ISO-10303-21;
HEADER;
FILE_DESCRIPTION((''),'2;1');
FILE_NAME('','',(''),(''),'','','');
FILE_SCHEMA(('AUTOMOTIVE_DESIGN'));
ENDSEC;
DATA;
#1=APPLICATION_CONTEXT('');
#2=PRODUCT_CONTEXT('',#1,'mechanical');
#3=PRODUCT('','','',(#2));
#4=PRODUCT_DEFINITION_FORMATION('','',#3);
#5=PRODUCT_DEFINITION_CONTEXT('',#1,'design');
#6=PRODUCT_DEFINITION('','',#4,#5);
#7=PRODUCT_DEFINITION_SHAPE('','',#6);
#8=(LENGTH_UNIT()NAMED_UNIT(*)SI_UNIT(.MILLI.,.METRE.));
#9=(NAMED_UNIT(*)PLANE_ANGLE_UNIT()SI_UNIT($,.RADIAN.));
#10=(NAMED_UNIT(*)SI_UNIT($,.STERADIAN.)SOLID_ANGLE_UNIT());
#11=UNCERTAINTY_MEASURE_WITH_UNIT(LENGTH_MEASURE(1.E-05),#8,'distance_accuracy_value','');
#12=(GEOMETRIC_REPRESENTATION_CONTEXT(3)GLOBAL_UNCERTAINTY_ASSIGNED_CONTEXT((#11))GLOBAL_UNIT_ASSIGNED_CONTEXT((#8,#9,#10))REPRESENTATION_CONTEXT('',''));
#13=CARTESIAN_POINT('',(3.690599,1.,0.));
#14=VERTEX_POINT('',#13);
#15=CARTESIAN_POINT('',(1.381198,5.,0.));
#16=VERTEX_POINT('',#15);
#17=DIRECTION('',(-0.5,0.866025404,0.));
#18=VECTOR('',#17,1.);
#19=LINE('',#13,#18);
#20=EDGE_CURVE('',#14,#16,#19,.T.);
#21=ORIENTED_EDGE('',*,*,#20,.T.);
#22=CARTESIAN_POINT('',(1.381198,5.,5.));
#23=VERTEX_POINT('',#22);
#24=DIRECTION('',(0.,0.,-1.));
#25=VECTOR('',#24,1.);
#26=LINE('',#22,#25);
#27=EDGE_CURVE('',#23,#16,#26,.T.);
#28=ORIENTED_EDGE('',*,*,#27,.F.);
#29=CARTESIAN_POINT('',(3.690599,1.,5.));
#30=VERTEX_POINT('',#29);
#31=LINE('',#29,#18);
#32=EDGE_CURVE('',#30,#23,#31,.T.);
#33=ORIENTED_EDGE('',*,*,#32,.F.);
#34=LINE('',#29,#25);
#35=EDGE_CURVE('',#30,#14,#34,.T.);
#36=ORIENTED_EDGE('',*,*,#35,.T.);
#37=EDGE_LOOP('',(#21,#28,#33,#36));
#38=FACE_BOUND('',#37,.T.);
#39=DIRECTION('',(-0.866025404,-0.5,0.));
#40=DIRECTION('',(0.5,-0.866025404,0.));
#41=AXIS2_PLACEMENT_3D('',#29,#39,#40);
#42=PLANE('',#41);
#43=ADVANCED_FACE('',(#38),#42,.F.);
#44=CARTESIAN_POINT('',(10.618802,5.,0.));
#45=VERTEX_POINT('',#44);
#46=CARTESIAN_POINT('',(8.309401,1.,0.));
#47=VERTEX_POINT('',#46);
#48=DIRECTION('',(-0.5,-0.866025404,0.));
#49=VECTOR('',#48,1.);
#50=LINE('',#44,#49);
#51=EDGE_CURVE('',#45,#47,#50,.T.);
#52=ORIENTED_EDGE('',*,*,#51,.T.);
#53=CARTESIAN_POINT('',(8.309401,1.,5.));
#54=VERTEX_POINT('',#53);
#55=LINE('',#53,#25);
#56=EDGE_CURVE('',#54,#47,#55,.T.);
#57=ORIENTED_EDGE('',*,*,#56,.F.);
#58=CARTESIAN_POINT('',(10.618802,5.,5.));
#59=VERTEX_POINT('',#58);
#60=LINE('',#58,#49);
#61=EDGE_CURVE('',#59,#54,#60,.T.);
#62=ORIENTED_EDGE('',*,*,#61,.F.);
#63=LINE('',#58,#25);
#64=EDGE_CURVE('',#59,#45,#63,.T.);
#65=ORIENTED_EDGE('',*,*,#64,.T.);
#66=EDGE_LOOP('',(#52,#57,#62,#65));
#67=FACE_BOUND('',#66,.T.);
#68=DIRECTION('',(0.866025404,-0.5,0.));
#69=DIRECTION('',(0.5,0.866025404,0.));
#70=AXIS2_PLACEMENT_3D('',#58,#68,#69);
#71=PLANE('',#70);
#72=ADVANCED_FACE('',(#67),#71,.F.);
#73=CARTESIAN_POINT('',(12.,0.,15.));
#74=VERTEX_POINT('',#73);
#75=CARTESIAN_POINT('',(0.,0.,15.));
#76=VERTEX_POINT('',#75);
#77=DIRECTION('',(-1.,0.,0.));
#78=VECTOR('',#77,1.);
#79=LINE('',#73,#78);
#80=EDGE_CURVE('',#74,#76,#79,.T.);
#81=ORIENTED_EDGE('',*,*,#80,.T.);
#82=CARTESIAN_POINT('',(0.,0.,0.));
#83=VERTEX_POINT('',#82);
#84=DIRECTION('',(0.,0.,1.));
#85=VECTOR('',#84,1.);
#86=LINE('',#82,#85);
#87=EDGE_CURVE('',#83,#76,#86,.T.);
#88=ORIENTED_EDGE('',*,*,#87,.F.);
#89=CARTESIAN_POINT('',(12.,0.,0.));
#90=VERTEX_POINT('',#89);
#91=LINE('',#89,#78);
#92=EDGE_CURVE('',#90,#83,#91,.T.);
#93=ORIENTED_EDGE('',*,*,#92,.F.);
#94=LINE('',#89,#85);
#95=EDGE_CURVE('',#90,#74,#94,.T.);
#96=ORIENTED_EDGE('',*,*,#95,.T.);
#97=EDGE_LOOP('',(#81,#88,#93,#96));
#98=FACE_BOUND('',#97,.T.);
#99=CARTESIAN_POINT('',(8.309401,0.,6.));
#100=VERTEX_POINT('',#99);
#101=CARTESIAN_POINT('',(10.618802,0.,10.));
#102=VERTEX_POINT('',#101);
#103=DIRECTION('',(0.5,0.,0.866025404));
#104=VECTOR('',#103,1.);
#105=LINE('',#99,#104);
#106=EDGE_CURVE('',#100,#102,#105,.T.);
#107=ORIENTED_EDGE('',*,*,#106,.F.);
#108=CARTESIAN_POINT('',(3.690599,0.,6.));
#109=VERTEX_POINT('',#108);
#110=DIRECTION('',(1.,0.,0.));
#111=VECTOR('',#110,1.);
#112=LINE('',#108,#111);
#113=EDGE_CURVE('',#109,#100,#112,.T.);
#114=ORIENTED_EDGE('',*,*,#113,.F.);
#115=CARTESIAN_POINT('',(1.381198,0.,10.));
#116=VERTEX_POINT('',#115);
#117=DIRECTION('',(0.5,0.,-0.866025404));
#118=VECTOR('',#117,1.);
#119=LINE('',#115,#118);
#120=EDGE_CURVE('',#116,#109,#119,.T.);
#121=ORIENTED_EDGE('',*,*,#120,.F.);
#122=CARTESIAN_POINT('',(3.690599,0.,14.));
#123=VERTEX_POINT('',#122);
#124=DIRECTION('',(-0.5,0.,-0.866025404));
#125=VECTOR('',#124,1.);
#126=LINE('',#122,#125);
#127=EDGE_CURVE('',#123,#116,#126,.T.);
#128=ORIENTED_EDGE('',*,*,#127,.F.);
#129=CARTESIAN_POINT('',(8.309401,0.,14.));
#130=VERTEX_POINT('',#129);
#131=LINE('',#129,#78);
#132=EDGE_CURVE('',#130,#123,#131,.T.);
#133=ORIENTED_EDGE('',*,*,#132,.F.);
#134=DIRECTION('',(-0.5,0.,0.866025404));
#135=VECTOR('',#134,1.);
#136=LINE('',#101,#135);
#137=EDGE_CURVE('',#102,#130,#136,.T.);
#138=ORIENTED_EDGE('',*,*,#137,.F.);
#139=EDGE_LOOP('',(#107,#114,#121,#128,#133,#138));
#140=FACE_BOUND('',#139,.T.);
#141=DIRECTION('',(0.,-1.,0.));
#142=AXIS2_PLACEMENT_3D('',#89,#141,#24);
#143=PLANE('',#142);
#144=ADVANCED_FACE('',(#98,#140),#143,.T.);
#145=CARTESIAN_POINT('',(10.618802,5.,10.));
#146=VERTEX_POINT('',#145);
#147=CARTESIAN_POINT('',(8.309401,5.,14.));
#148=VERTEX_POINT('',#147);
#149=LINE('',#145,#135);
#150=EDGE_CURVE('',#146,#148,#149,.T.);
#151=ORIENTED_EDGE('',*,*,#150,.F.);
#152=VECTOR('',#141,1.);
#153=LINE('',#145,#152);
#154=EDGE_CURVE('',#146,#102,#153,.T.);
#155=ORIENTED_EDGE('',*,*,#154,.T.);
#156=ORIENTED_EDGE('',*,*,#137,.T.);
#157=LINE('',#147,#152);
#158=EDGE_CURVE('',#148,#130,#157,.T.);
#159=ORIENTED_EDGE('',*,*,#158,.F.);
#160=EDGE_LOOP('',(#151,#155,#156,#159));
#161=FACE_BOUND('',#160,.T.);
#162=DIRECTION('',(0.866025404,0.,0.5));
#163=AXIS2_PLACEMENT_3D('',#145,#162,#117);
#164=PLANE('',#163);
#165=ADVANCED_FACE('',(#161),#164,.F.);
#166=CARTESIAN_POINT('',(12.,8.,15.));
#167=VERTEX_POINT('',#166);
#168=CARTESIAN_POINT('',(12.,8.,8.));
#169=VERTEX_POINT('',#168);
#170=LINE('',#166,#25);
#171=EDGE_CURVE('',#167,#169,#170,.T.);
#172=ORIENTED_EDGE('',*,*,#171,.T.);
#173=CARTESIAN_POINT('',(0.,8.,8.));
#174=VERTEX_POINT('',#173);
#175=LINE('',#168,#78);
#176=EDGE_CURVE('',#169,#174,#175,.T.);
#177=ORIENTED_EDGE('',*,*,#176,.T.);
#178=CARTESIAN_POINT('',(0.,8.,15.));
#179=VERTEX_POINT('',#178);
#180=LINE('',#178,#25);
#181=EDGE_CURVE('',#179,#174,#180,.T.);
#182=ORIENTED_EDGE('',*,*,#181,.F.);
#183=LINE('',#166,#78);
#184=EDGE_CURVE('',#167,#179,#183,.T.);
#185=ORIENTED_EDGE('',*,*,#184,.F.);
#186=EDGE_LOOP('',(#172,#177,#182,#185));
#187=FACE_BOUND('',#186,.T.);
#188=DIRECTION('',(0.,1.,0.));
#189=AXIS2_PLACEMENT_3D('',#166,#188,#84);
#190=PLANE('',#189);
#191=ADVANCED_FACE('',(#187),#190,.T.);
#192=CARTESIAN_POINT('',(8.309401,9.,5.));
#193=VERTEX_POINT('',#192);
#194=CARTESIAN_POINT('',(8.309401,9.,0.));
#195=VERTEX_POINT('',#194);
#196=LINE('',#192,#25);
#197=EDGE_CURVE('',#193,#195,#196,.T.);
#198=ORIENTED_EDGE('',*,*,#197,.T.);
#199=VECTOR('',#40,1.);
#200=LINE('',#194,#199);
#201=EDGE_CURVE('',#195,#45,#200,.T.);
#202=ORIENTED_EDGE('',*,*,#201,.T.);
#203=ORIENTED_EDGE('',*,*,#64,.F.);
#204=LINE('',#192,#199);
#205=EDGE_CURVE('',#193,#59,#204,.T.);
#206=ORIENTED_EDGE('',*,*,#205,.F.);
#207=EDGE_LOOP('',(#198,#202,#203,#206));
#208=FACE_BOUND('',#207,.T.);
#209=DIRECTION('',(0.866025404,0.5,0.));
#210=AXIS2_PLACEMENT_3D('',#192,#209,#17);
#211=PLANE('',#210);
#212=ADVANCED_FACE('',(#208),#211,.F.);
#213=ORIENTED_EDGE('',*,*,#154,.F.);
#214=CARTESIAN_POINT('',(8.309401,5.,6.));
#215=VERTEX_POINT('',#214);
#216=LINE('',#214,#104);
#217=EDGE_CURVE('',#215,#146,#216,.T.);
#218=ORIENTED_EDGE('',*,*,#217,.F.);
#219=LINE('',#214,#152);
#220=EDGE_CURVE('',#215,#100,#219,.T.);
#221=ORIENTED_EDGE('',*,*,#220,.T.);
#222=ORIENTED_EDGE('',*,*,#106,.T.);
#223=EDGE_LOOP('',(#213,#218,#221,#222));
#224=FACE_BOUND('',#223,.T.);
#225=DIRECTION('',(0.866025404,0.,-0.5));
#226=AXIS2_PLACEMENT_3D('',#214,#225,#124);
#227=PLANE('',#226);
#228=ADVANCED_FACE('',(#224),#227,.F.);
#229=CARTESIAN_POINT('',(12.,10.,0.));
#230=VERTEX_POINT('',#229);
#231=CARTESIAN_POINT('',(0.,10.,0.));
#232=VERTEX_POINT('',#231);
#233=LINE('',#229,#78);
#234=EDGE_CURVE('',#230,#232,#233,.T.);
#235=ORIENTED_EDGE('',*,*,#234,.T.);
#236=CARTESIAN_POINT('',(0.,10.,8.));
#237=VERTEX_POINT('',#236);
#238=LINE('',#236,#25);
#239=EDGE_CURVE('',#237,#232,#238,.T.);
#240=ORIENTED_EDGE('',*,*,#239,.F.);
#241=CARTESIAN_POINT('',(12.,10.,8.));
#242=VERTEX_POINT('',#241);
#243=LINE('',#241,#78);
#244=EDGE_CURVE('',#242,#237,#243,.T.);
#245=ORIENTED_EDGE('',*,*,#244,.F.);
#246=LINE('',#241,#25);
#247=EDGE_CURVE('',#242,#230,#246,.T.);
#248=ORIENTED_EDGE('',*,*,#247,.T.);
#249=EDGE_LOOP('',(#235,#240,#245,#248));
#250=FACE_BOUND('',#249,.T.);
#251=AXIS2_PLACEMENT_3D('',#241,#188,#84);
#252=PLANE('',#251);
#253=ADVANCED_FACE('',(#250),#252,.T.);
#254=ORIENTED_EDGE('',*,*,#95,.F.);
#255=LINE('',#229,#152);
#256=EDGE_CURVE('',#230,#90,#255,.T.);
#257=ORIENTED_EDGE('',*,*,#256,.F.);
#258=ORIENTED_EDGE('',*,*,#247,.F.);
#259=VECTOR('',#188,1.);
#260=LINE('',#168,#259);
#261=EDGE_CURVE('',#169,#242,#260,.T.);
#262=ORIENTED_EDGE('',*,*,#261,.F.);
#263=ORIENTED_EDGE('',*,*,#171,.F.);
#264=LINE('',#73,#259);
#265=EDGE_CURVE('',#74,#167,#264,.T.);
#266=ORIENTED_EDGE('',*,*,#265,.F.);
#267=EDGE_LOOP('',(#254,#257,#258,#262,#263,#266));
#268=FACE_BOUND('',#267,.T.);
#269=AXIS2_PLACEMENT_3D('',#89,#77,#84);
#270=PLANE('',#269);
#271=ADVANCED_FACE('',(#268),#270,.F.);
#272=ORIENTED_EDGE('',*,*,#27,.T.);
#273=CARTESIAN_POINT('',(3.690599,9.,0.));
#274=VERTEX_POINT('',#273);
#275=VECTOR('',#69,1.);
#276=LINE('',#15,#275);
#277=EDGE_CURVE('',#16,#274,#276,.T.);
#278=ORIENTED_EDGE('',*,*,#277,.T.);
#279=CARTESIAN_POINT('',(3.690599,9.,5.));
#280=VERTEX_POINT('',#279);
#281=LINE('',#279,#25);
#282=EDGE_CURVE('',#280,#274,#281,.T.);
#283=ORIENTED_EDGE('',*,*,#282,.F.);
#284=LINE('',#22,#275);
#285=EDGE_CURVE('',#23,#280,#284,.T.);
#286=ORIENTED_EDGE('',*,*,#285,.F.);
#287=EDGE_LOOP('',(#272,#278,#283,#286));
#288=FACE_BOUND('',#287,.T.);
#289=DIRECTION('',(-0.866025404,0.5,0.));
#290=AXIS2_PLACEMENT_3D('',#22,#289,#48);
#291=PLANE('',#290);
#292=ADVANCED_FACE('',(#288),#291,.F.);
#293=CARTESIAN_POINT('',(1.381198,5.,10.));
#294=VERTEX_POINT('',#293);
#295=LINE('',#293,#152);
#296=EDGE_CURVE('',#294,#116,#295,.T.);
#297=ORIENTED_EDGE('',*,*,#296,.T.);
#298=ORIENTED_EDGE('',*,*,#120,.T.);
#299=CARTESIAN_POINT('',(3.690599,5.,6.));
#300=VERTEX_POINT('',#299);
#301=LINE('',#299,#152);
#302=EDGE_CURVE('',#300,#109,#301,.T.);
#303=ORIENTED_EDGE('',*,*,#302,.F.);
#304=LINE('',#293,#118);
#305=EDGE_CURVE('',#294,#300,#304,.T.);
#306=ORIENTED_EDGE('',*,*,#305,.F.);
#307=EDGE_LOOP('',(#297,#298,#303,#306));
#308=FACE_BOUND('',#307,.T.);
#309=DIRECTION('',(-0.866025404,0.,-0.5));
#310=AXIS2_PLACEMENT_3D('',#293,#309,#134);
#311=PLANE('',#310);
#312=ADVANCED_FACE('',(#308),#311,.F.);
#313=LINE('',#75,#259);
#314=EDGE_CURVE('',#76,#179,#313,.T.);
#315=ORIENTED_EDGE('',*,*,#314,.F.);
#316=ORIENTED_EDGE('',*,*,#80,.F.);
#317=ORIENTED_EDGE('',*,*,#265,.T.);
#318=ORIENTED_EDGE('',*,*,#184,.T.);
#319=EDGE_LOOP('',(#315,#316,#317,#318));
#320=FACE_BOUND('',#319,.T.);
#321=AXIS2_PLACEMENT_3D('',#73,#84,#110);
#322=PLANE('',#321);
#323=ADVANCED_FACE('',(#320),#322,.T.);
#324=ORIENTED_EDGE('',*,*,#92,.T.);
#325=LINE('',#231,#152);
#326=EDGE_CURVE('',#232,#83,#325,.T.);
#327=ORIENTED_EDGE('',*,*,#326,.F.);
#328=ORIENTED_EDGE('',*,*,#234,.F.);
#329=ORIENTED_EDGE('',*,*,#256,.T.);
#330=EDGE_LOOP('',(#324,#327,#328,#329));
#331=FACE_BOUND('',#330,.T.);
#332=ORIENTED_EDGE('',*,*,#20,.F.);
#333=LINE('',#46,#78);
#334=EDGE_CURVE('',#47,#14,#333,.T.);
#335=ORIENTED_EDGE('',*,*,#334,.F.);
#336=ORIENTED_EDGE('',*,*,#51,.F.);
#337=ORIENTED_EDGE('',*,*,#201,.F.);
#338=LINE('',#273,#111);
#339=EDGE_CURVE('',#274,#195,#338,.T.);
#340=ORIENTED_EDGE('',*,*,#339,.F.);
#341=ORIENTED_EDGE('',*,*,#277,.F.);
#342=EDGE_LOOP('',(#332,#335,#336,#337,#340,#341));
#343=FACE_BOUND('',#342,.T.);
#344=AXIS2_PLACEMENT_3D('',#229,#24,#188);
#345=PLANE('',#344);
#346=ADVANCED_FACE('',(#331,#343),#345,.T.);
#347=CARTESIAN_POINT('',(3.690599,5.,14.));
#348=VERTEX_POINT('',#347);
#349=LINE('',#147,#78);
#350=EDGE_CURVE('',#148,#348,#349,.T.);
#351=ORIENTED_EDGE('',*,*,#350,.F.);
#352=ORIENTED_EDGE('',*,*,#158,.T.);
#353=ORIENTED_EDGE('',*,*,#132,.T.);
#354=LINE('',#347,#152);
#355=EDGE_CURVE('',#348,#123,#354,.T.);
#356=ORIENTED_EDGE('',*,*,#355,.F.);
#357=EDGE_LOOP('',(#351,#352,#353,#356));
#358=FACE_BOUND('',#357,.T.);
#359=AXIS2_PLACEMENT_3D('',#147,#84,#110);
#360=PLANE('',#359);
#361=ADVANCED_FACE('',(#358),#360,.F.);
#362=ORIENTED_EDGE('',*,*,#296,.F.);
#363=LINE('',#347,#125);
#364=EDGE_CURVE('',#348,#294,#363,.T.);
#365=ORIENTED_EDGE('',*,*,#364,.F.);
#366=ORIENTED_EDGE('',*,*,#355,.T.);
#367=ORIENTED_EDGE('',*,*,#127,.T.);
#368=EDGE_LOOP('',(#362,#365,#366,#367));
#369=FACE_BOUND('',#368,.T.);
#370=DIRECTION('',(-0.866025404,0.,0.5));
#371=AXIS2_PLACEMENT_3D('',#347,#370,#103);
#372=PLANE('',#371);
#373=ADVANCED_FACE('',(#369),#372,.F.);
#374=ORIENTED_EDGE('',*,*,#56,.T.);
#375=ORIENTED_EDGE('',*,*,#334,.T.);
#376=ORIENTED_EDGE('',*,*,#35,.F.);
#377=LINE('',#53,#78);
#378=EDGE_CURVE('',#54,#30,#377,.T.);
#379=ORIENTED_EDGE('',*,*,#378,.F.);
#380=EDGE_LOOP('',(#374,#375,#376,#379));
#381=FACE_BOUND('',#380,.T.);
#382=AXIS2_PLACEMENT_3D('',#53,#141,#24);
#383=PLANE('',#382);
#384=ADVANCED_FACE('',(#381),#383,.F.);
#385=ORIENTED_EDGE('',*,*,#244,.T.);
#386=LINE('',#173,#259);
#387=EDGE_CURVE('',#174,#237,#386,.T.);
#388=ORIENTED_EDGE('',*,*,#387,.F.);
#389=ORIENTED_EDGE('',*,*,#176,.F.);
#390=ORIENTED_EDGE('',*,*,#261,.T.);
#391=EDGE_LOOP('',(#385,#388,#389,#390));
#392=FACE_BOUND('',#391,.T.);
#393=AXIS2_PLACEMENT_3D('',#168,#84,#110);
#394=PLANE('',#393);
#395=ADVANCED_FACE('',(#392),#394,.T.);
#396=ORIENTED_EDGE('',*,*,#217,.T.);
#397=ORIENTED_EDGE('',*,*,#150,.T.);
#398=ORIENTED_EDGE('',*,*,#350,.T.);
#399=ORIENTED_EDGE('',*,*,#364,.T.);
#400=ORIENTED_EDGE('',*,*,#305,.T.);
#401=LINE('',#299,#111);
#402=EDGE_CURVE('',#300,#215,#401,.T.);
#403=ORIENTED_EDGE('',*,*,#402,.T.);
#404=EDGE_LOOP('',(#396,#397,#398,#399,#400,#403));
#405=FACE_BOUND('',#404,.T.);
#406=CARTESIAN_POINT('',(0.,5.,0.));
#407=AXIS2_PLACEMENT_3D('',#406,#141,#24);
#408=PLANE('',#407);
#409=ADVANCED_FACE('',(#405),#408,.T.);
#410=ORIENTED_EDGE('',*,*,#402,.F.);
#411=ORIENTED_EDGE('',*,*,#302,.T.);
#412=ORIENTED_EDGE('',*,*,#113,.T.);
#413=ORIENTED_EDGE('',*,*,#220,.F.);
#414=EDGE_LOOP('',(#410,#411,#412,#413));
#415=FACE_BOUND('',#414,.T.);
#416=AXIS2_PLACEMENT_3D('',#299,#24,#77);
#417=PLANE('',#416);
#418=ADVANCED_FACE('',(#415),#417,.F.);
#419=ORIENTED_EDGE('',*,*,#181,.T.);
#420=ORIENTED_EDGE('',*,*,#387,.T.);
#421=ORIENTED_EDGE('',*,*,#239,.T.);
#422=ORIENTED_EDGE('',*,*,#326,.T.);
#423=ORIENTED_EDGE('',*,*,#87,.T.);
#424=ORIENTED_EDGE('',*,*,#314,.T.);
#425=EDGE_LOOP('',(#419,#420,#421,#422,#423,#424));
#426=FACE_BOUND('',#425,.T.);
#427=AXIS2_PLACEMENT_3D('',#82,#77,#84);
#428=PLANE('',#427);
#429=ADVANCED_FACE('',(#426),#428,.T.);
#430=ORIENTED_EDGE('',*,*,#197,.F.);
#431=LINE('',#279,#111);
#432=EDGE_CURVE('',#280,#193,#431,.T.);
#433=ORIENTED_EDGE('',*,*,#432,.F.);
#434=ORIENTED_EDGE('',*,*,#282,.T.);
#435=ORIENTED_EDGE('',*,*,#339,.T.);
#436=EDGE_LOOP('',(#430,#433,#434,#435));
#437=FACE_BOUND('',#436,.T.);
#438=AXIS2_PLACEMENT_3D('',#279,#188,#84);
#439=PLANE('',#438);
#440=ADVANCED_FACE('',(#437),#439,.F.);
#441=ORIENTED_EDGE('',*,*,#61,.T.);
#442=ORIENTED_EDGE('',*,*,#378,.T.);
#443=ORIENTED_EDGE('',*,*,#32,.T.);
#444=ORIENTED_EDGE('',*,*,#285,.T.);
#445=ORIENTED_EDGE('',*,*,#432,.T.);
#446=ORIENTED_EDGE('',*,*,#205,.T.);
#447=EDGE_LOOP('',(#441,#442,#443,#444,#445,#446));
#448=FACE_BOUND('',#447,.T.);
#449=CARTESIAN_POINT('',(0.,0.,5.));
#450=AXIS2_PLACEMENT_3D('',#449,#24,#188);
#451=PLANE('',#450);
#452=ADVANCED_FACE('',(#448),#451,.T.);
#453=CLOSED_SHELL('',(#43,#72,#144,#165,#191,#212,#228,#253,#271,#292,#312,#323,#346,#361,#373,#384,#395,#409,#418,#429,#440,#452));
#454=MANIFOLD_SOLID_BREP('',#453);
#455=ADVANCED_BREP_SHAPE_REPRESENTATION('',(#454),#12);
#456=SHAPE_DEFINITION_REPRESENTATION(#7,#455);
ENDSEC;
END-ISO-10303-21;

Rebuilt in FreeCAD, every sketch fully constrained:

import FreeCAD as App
import Part
import Sketcher
Q = App.Units.Quantity


def add_polygon(sketch, points):
    """Adds a closed chain of lines whose ends are joined by coincident constraints."""
    first, n = sketch.GeometryCount, len(points)
    for a, b in zip(points, points[1:] + points[:1]):
        sketch.addGeometry(Part.LineSegment(App.Vector(*a, 0), App.Vector(*b, 0)), False)
    for i in range(n):
        sketch.addConstraint(Sketcher.Constraint("Coincident", first + i, 2, first + (i + 1) % n, 1))

doc = App.newDocument("Part")
body = doc.addObject("PartDesign::Body", "Body")

sketch1 = body.newObject("Sketcher::SketchObject", "Sketch")
sketch1.AttachmentSupport = (doc.getObject("YZ_Plane"), [""])
sketch1.MapMode = "FlatFace"
add_polygon(sketch1, [(0, 15), (0, 0), (10, 0), (10, 8), (8, 8), (8, 15)])
sketch1.addConstraint([
    Sketcher.Constraint("Vertical", 0),
    Sketcher.Constraint("Horizontal", 1),
    Sketcher.Constraint("Vertical", 2),
    Sketcher.Constraint("Horizontal", 3),
    Sketcher.Constraint("Vertical", 4),
    Sketcher.Constraint("Horizontal", 5),
    Sketcher.Constraint("Coincident", 0, 2, -1, 1),
    Sketcher.Constraint("Equal", 5, 2),
    Sketcher.Constraint("DistanceX", 1, 1, 1, 2, 10.0),
    Sketcher.Constraint("DistanceX", 3, 2, 3, 1, 2.0),
    Sketcher.Constraint("DistanceY", 0, 2, 0, 1, 15.0),
])
pad1 = body.newObject("PartDesign::Pad", "Pad")
pad1.Profile = sketch1
pad1.Length = 12

sketch2 = body.newObject("Sketcher::SketchObject", "Sketch001")
sketch2.AttachmentSupport = (doc.getObject("XY_Plane"), [""])
sketch2.MapMode = "FlatFace"
add_polygon(sketch2, [(3.690599, 9), (8.309401, 9), (10.618802, 5), (8.309401, 1), (3.690599, 1), (1.381198, 5)])
sketch2.addConstraint([
    Sketcher.Constraint("Horizontal", 0),
    Sketcher.Constraint("Horizontal", 3),
    Sketcher.Constraint("Parallel", 1, 4),
    Sketcher.Constraint("Parallel", 2, 5),
    Sketcher.Constraint("Horizontal", 1, 2, 4, 2),
    Sketcher.Constraint("Vertical", 0, 2, 2, 2),
    Sketcher.Constraint("Vertical", 3, 2, 5, 2),
    Sketcher.Constraint("Angle", 1, Q("-60 deg")),
    Sketcher.Constraint("DistanceY", -1, 1, 0, 2, 9.0),
    Sketcher.Constraint("DistanceY", -1, 1, 1, 2, 5.0),
    Sketcher.Constraint("DistanceX", -1, 1, 0, 2, 8.309401),
    Sketcher.Constraint("DistanceX", -1, 1, 3, 2, 3.690599),
])
pocket1 = body.newObject("PartDesign::Pocket", "Pocket")
pocket1.Profile = sketch2
pocket1.Length = 5
pocket1.Reversed = True

sketch3 = body.newObject("Sketcher::SketchObject", "Sketch002")
sketch3.AttachmentSupport = (doc.getObject("XZ_Plane"), [""])
sketch3.MapMode = "FlatFace"
add_polygon(sketch3, [(3.690599, 6), (8.309401, 6), (10.618802, 10), (8.309401, 14), (3.690599, 14), (1.381198, 10)])
sketch3.addConstraint([
    Sketcher.Constraint("Horizontal", 0),
    Sketcher.Constraint("Horizontal", 3),
    Sketcher.Constraint("Parallel", 1, 4),
    Sketcher.Constraint("Parallel", 2, 5),
    Sketcher.Constraint("Horizontal", 1, 2, 4, 2),
    Sketcher.Constraint("Vertical", 0, 2, 2, 2),
    Sketcher.Constraint("Vertical", 3, 2, 5, 2),
    Sketcher.Constraint("Angle", 1, Q("60 deg")),
    Sketcher.Constraint("DistanceY", -1, 1, 0, 2, 6.0),
    Sketcher.Constraint("DistanceY", -1, 1, 1, 2, 10.0),
    Sketcher.Constraint("DistanceX", -1, 1, 0, 2, 8.309401),
    Sketcher.Constraint("DistanceX", -1, 1, 3, 2, 3.690599),
])
pocket2 = body.newObject("PartDesign::Pocket", "Pocket001")
pocket2.Profile = sketch3
pocket2.Length = 5

doc.recompute()
